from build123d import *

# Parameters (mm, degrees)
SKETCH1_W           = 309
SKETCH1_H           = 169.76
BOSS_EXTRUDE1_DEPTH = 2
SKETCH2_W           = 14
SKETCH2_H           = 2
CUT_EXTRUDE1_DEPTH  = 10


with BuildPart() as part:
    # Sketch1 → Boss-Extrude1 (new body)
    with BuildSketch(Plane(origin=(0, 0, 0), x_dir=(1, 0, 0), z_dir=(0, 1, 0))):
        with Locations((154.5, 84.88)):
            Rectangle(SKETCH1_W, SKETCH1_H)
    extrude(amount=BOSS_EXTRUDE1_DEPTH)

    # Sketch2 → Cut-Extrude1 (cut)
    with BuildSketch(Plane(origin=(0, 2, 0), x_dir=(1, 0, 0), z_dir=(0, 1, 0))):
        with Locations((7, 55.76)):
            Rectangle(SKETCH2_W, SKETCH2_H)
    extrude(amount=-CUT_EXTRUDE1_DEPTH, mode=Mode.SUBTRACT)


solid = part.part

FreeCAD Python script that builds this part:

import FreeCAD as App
import Part
import Sketcher
Q = App.Units.Quantity


def add_polygon(sketch, points):
    """Adds a closed chain of lines whose ends are joined by coincident constraints."""
    first, n = sketch.GeometryCount, len(points)
    for a, b in zip(points, points[1:] + points[:1]):
        sketch.addGeometry(Part.LineSegment(App.Vector(*a, 0), App.Vector(*b, 0)), False)
    for i in range(n):
        sketch.addConstraint(Sketcher.Constraint("Coincident", first + i, 2, first + (i + 1) % n, 1))

doc = App.newDocument("Part")
body = doc.addObject("PartDesign::Body", "Body")

# Sketch on XZ plane
sketch1 = body.newObject("Sketcher::SketchObject", "Sketch")
sketch1.AttachmentSupport = (doc.getObject("XZ_Plane"), [""])
sketch1.MapMode = "FlatFace"
add_polygon(sketch1, [(0, -170), (0, 0), (309, 0), (309, -170)])  # lines 0-3
sketch1.addConstraint([
    Sketcher.Constraint("Vertical", 0),
    Sketcher.Constraint("Horizontal", 1),
    Sketcher.Constraint("Vertical", 2),
    Sketcher.Constraint("Horizontal", 3),
    Sketcher.Constraint("Coincident", 0, 2, -1, 1),
    Sketcher.Constraint("DistanceX", 1, 1, 1, 2, Q("309 mm")),
    Sketcher.Constraint("DistanceY", 0, 1, 0, 2, Q("169.76 mm")),
])
pad1 = body.newObject("PartDesign::Pad", "Pad")
pad1.Profile = sketch1
pad1.Length = 2
pad1.Reversed = True

# Sketch on XZ plane
sketch2 = body.newObject("Sketcher::SketchObject", "Sketch001")
sketch2.AttachmentSupport = (doc.getObject("XZ_Plane"), [""])
sketch2.MapMode = "FlatFace"
sketch2.AttachmentOffset = App.Placement(App.Vector(0, 0, -2), App.Rotation())
add_polygon(sketch2, [(0, -56.8), (0, -54.8), (14, -54.8), (14, -56.8)])  # lines 0-3
sketch2.addConstraint([
    Sketcher.Constraint("Vertical", 0),
    Sketcher.Constraint("Horizontal", 1),
    Sketcher.Constraint("Vertical", 2),
    Sketcher.Constraint("Horizontal", 3),
    Sketcher.Constraint("PointOnObject", 0, 2, -2),
    Sketcher.Constraint("DistanceX", 1, 1, 1, 2, Q("14 mm")),
    Sketcher.Constraint("DistanceY", 0, 1, 0, 2, Q("2 mm")),
    Sketcher.Constraint("DistanceY", 0, 2, -1, 1, Q("54.76 mm")),
])
pocket1 = body.newObject("PartDesign::Pocket", "Pocket")
pocket1.Profile = sketch2
pocket1.Length = 10
pocket1.Reversed = True

doc.recompute()
